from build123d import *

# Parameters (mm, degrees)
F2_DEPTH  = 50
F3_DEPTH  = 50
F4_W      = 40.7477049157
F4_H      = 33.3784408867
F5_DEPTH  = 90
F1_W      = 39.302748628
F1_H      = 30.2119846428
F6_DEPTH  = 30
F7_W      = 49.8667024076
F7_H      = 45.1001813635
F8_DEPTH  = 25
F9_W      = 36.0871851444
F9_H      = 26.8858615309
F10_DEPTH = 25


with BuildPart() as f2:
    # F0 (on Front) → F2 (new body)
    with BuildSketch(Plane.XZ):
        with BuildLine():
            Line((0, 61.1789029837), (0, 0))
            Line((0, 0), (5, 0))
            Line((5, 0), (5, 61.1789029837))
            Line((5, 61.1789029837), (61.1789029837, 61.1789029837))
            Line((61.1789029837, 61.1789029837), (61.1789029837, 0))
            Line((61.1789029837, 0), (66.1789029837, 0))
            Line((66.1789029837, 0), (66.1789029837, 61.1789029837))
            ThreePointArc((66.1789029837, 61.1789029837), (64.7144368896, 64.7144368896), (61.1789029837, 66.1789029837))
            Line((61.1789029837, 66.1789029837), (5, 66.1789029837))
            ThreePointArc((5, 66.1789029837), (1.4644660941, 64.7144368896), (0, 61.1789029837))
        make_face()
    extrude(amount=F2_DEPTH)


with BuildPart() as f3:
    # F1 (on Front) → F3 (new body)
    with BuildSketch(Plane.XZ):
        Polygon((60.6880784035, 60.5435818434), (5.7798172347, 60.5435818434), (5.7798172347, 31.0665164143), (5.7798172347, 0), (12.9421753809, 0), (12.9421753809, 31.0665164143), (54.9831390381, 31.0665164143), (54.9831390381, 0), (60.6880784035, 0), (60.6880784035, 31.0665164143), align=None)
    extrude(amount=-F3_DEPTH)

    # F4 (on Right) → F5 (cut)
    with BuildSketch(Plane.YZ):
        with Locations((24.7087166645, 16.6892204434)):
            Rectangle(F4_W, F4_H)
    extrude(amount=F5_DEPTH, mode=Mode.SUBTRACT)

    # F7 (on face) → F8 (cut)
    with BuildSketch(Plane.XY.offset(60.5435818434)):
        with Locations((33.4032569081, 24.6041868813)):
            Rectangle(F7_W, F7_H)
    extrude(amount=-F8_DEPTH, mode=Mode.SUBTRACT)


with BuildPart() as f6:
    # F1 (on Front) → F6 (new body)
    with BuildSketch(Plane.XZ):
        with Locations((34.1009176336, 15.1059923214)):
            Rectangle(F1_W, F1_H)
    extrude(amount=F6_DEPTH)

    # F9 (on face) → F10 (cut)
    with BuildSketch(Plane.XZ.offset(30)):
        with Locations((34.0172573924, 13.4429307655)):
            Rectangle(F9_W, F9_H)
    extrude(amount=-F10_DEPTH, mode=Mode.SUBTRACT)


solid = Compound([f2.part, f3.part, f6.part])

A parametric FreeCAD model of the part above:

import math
import FreeCAD as App
import Part
import Sketcher

V = App.Vector


def add_polygon(sketch, points):
    """Adds a closed chain of lines whose ends are joined by coincident constraints."""
    first, n = sketch.GeometryCount, len(points)
    for a, b in zip(points, points[1:] + points[:1]):
        sketch.addGeometry(Part.LineSegment(App.Vector(*a, 0), App.Vector(*b, 0)), False)
    for i in range(n):
        sketch.addConstraint(Sketcher.Constraint("Coincident", first + i, 2, first + (i + 1) % n, 1))

doc = App.newDocument("Part")
body = doc.addObject("PartDesign::Body", "Body")

# Sketch on XZ plane
sketch1 = doc.addObject("Sketcher::SketchObject", "Sketch")
body.addObject(sketch1)
sketch1.AttachmentSupport = (doc.XZ_Plane, [""])
sketch1.MapMode = "FlatFace"
sketch1.addGeometry(Part.LineSegment(V(0, 61.178903, 0), V(0, 0, 0)), False)
sketch1.addGeometry(Part.LineSegment(V(0, 0, 0), V(5, 0, 0)), False)
sketch1.addGeometry(Part.LineSegment(V(5, 0, 0), V(5, 61.178903, 0)), False)
sketch1.addGeometry(Part.LineSegment(V(5, 61.178903, 0), V(61.178903, 61.178903, 0)), False)
sketch1.addGeometry(Part.LineSegment(V(61.178903, 61.178903, 0), V(61.178903, 0, 0)), False)
sketch1.addGeometry(Part.LineSegment(V(61.178903, 0, 0), V(66.178903, 0, 0)), False)
sketch1.addGeometry(Part.LineSegment(V(66.178903, 0, 0), V(66.178903, 61.178903, 0)), False)
sketch1.addGeometry(Part.ArcOfCircle(Part.Circle(V(61.178903, 61.178903, 0), V(0, 0, 1), 5), math.radians(0), math.radians(90)), False)
sketch1.addGeometry(Part.LineSegment(V(61.178903, 66.178903, 0), V(5, 66.178903, 0)), False)
sketch1.addGeometry(Part.ArcOfCircle(Part.Circle(V(5, 61.178903, 0), V(0, 0, 1), 5), math.radians(90), math.radians(180)), False)
sketch1.addConstraint(Sketcher.Constraint("Coincident", 0, 2, 1, 1))
sketch1.addConstraint(Sketcher.Constraint("Coincident", 1, 2, 2, 1))
sketch1.addConstraint(Sketcher.Constraint("Coincident", 2, 2, 3, 1))
sketch1.addConstraint(Sketcher.Constraint("Coincident", 3, 2, 4, 1))
sketch1.addConstraint(Sketcher.Constraint("Coincident", 4, 2, 5, 1))
sketch1.addConstraint(Sketcher.Constraint("Coincident", 5, 2, 6, 1))
sketch1.addConstraint(Sketcher.Constraint("Tangent", 6, 2, 7, 1))
sketch1.addConstraint(Sketcher.Constraint("Tangent", 7, 2, 8, 1))
sketch1.addConstraint(Sketcher.Constraint("Tangent", 8, 2, 9, 1))
sketch1.addConstraint(Sketcher.Constraint("Tangent", 9, 2, 0, 1))
sketch1.addConstraint(Sketcher.Constraint("Vertical", 0))
sketch1.addConstraint(Sketcher.Constraint("Horizontal", 1))
sketch1.addConstraint(Sketcher.Constraint("Vertical", 2))
sketch1.addConstraint(Sketcher.Constraint("Horizontal", 3))
sketch1.addConstraint(Sketcher.Constraint("Vertical", 4))
sketch1.addConstraint(Sketcher.Constraint("Horizontal", 5))
sketch1.addConstraint(Sketcher.Constraint("Vertical", 6))
sketch1.addConstraint(Sketcher.Constraint("Horizontal", 8))
sketch1.addConstraint(Sketcher.Constraint("Coincident", 0, 2, -1, 1))
sketch1.addConstraint(Sketcher.Constraint("Coincident", 2, 2, 9, 3))
sketch1.addConstraint(Sketcher.Constraint("Coincident", 3, 2, 7, 3))
sketch1.addConstraint(Sketcher.Constraint("PointOnObject", 4, 2, -1))
sketch1.addConstraint(Sketcher.Constraint("Radius", 7, 5.0))
sketch1.addConstraint(Sketcher.Constraint("DistanceX", 3, 1, 3, 2, 56.178903))
sketch1.addConstraint(Sketcher.Constraint("DistanceY", 0, 2, 0, 1, 61.178903))
pad1 = doc.addObject("PartDesign::Pad", "Pad")
body.addObject(pad1)
pad1.Profile = sketch1
pad1.Length = 50
body2 = doc.addObject("PartDesign::Body", "Body001")

# Sketch on XZ plane
sketch2 = doc.addObject("Sketcher::SketchObject", "Sketch001")
body2.addObject(sketch2)
sketch2.AttachmentSupport = (doc.getObject("XZ_Plane001"), [""])
sketch2.MapMode = "FlatFace"
add_polygon(sketch2, [(60.688078, 60.543582), (5.779817, 60.543582), (5.779817, 0), (12.942175, 0), (12.942175, 31.066516), (54.983139, 31.066516), (54.983139, 0), (60.688078, 0)])  # lines 0-7
sketch2.addConstraint(Sketcher.Constraint("Horizontal", 0))
sketch2.addConstraint(Sketcher.Constraint("Vertical", 1))
sketch2.addConstraint(Sketcher.Constraint("Horizontal", 2))
sketch2.addConstraint(Sketcher.Constraint("Vertical", 3))
sketch2.addConstraint(Sketcher.Constraint("Horizontal", 4))
sketch2.addConstraint(Sketcher.Constraint("Vertical", 5))
sketch2.addConstraint(Sketcher.Constraint("Horizontal", 6))
sketch2.addConstraint(Sketcher.Constraint("Vertical", 7))
sketch2.addConstraint(Sketcher.Constraint("PointOnObject", 1, 2, -1))
sketch2.addConstraint(Sketcher.Constraint("PointOnObject", 5, 2, -1))
sketch2.addConstraint(Sketcher.Constraint("DistanceX", 0, 2, 0, 1, 54.908261))
sketch2.addConstraint(Sketcher.Constraint("DistanceX", 2, 1, 2, 2, 7.162358))
sketch2.addConstraint(Sketcher.Constraint("DistanceX", 6, 1, 6, 2, 5.704939))
sketch2.addConstraint(Sketcher.Constraint("DistanceY", 1, 2, 1, 1, 60.543582))
sketch2.addConstraint(Sketcher.Constraint("DistanceY", 3, 1, 3, 2, 31.066516))
sketch2.addConstraint(Sketcher.Constraint("DistanceX", -1, 1, 4, 2, 54.983139))
pad2 = doc.addObject("PartDesign::Pad", "Pad001")
body2.addObject(pad2)
pad2.Profile = sketch2
pad2.Length = 50
pad2.Reversed = True

# Sketch on YZ plane
sketch3 = doc.addObject("Sketcher::SketchObject", "Sketch002")
body2.addObject(sketch3)
sketch3.AttachmentSupport = (doc.getObject("YZ_Plane001"), [""])
sketch3.MapMode = "FlatFace"
add_polygon(sketch3, [(4.334864, 33.378441), (4.334864, 0), (45.082569, 0), (45.082569, 33.378441)])  # lines 0-3
sketch3.addConstraint(Sketcher.Constraint("Vertical", 0))
sketch3.addConstraint(Sketcher.Constraint("Horizontal", 1))
sketch3.addConstraint(Sketcher.Constraint("Vertical", 2))
sketch3.addConstraint(Sketcher.Constraint("Horizontal", 3))
sketch3.addConstraint(Sketcher.Constraint("PointOnObject", 0, 2, -1))
sketch3.addConstraint(Sketcher.Constraint("DistanceY", 0, 2, 0, 1, 33.378441))
sketch3.addConstraint(Sketcher.Constraint("DistanceX", 1, 1, 1, 2, 40.747705))
sketch3.addConstraint(Sketcher.Constraint("DistanceX", -1, 1, 1, 2, 45.082569))
pocket1 = doc.addObject("PartDesign::Pocket", "Pocket")
body2.addObject(pocket1)
pocket1.Profile = sketch3
pocket1.Length = 90
pocket1.Reversed = True

# Sketch on XY plane
sketch4 = doc.addObject("Sketcher::SketchObject", "Sketch003")
body2.addObject(sketch4)
sketch4.AttachmentSupport = (doc.getObject("XY_Plane001"), [""])
sketch4.MapMode = "FlatFace"
sketch4.AttachmentOffset = App.Placement(V(0, 0, 60.543582), App.Rotation())
add_polygon(sketch4, [(8.469906, 47.154278), (8.469906, 2.054096), (58.336608, 2.054096), (58.336608, 47.154278)])  # lines 0-3
sketch4.addConstraint(Sketcher.Constraint("Vertical", 0))
sketch4.addConstraint(Sketcher.Constraint("Horizontal", 1))
sketch4.addConstraint(Sketcher.Constraint("Vertical", 2))
sketch4.addConstraint(Sketcher.Constraint("Horizontal", 3))
sketch4.addConstraint(Sketcher.Constraint("DistanceY", 0, 2, 0, 1, 45.100181))
sketch4.addConstraint(Sketcher.Constraint("DistanceX", 1, 1, 1, 2, 49.866702))
sketch4.addConstraint(Sketcher.Constraint("DistanceX", -1, 1, 1, 2, 58.336608))
sketch4.addConstraint(Sketcher.Constraint("DistanceY", -1, 1, 0, 2, 2.054096))
pocket2 = doc.addObject("PartDesign::Pocket", "Pocket001")
body2.addObject(pocket2)
pocket2.Profile = sketch4
pocket2.Length = 25
body3 = doc.addObject("PartDesign::Body", "Body002")

# Sketch on XZ plane
sketch5 = doc.addObject("Sketcher::SketchObject", "Sketch004")
body3.addObject(sketch5)
sketch5.AttachmentSupport = (doc.getObject("XZ_Plane002"), [""])
sketch5.MapMode = "FlatFace"
add_polygon(sketch5, [(14.449543, 30.211985), (14.449543, 0), (53.752292, 0), (53.752292, 30.211985)])  # lines 0-3
sketch5.addConstraint(Sketcher.Constraint("Vertical", 0))
sketch5.addConstraint(Sketcher.Constraint("Horizontal", 1))
sketch5.addConstraint(Sketcher.Constraint("Vertical", 2))
sketch5.addConstraint(Sketcher.Constraint("Horizontal", 3))
sketch5.addConstraint(Sketcher.Constraint("PointOnObject", 0, 2, -1))
sketch5.addConstraint(Sketcher.Constraint("DistanceX", 1, 1, 1, 2, 39.302749))
sketch5.addConstraint(Sketcher.Constraint("DistanceY", 0, 2, 0, 1, 30.211985))
sketch5.addConstraint(Sketcher.Constraint("DistanceX", -1, 1, 1, 2, 53.752292))
pad3 = doc.addObject("PartDesign::Pad", "Pad002")
body3.addObject(pad3)
pad3.Profile = sketch5
pad3.Length = 30

# Sketch on XZ plane
sketch6 = doc.addObject("Sketcher::SketchObject", "Sketch005")
body3.addObject(sketch6)
sketch6.AttachmentSupport = (doc.getObject("XZ_Plane002"), [""])
sketch6.MapMode = "FlatFace"
sketch6.AttachmentOffset = App.Placement(V(0, 0, 30), App.Rotation())
add_polygon(sketch6, [(15.973665, 26.885862), (15.973665, 0), (52.06085, 0), (52.06085, 26.885862)])  # lines 0-3
sketch6.addConstraint(Sketcher.Constraint("Vertical", 0))
sketch6.addConstraint(Sketcher.Constraint("Horizontal", 1))
sketch6.addConstraint(Sketcher.Constraint("Vertical", 2))
sketch6.addConstraint(Sketcher.Constraint("Horizontal", 3))
sketch6.addConstraint(Sketcher.Constraint("PointOnObject", 0, 2, -1))
sketch6.addConstraint(Sketcher.Constraint("DistanceY", 0, 2, 0, 1, 26.885862))
sketch6.addConstraint(Sketcher.Constraint("DistanceX", 1, 1, 1, 2, 36.087185))
sketch6.addConstraint(Sketcher.Constraint("DistanceX", -1, 1, 1, 2, 52.06085))
pocket3 = doc.addObject("PartDesign::Pocket", "Pocket002")
body3.addObject(pocket3)
pocket3.Profile = sketch6
pocket3.Length = 25

doc.recompute()
